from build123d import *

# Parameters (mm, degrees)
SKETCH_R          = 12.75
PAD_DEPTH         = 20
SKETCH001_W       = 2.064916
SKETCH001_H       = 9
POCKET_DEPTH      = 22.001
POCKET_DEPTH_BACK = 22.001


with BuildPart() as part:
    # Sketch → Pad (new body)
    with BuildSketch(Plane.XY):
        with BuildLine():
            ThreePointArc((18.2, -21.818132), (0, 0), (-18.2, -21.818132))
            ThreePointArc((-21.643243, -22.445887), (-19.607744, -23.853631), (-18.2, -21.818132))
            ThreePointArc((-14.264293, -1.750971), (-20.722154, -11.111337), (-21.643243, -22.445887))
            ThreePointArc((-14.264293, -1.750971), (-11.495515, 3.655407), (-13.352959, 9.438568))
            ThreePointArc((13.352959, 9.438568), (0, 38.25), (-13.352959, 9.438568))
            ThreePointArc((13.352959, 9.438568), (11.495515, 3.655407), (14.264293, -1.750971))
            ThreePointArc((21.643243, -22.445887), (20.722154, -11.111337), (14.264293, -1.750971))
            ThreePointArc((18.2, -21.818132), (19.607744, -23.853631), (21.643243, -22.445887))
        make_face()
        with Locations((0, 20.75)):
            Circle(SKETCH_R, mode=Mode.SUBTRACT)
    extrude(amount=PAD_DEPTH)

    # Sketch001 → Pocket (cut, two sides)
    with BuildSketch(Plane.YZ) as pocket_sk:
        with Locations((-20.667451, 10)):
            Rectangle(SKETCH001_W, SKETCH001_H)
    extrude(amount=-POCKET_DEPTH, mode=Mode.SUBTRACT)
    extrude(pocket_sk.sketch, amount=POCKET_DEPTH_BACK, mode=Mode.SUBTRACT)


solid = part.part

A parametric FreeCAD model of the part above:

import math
import FreeCAD as App
import Part
import Sketcher

V = App.Vector

doc = App.newDocument("Part")
body = doc.addObject("PartDesign::Body", "Body")

# Sketch on XY plane
sketch1 = body.newObject("Sketcher::SketchObject", "Sketch")
sketch1.AttachmentSupport = (doc.getObject("XY_Plane"), [""])
sketch1.MapMode = "FlatFace"
sketch1.addGeometry([
    Part.ArcOfCircle(Part.Circle(V(0, -18.5, 0), V(0, 0, 1), 18.5), math.radians(-10.332396), math.radians(190.332396)),  # 0
    Part.ArcOfCircle(Part.Circle(V(19.921622, -22.132009, 0), V(0, 0, 1), 1.75), math.radians(169.667599), math.radians(349.667599)),  # 1
    Part.ArcOfCircle(Part.Circle(V(-0.000001, -18.499999, 0), V(0, 0, 1), 22.000001), math.radians(-10.332398), math.radians(49.580656)),  # 2
    Part.ArcOfCircle(Part.Circle(V(19.418163, 4.300668, 0), V(0, 0, 1), 7.948881), math.radians(139.731705), math.radians(229.580671)),  # 3
    Part.ArcOfCircle(Part.Circle(V(0, 20.75, 0), V(0, 0, 1), 17.5), math.radians(-40.268286), math.radians(220.268286)),  # 4
    Part.ArcOfCircle(Part.Circle(V(-19.418163, 4.300668, 0), V(0, 0, 1), 7.948881), math.radians(-49.580671), math.radians(40.268295)),  # 5
    Part.ArcOfCircle(Part.Circle(V(0.000001, -18.499999, 0), V(0, 0, 1), 22.000001), math.radians(130.419344), math.radians(190.332398)),  # 6
    Part.ArcOfCircle(Part.Circle(V(-19.921622, -22.132009, 0), V(0, 0, 1), 1.75), math.radians(-169.667599), math.radians(10.332401)),  # 7
    Part.Circle(V(0, 20.75, 0), V(0, 0, 1), 12.75),  # 8
], False)
sketch1.addConstraint([
    Sketcher.Constraint("Tangent", 0, 1, 1, 1),
    Sketcher.Constraint("Tangent", 1, 2, 2, 1),
    Sketcher.Constraint("Tangent", 2, 2, 3, 2),
    Sketcher.Constraint("Tangent", 3, 1, 4, 1),
    Sketcher.Constraint("Tangent", 4, 2, 5, 2),
    Sketcher.Constraint("Tangent", 5, 1, 6, 1),
    Sketcher.Constraint("Tangent", 6, 2, 7, 1),
    Sketcher.Constraint("Tangent", 7, 2, 0, 2),
    Sketcher.Constraint("Coincident", 2, 3, 0, 3),
    Sketcher.Constraint("Coincident", 6, 3, 0, 3),
    Sketcher.Constraint("Coincident", 8, 3, 4, 3),
    Sketcher.Constraint("Equal", 3, 5),
    Sketcher.Constraint("Equal", 2, 6),
    Sketcher.Constraint("Symmetric", 3, 3, 5, 3, -2),
    Sketcher.Constraint("Horizontal", 1, 3, 7, 3),
    Sketcher.Constraint("Radius", 2, 22.000001),
    Sketcher.Constraint("Diameter", 8, 25.5),
    Sketcher.Constraint("Radius", 0, 18.5),
    Sketcher.Constraint("Radius", 4, 17.5),
    Sketcher.Constraint("DistanceY", 0, 3, -1, 1, 18.5),
    Sketcher.Constraint("DistanceX", -1, 1, 0, 1, 18.2),
    Sketcher.Constraint("DistanceY", -1, 1, 4, 3, 20.75),
    Sketcher.Constraint("Radius", 3, 7.948881),
])
pad1 = body.newObject("PartDesign::Pad", "Pad")
pad1.Profile = sketch1
pad1.Length = 20

# Sketch on YZ plane
sketch2 = body.newObject("Sketcher::SketchObject", "Sketch001")
sketch2.AttachmentSupport = (doc.getObject("YZ_Plane"), [""])
sketch2.MapMode = "FlatFace"
sketch2.addGeometry([
    Part.LineSegment(V(-21.699909, 14.5, 0), V(-21.699909, 5.5, 0)),
    Part.LineSegment(V(-21.699909, 5.5, 0), V(-19.634993, 5.5, 0)),
    Part.LineSegment(V(-19.634993, 5.5, 0), V(-19.634993, 14.5, 0)),
    Part.LineSegment(V(-19.634993, 14.5, 0), V(-21.699909, 14.5, 0)),
], False)
sketch2.addConstraint([
    Sketcher.Constraint("Coincident", 0, 2, 1, 1),
    Sketcher.Constraint("Coincident", 1, 2, 2, 1),
    Sketcher.Constraint("Coincident", 2, 2, 3, 1),
    Sketcher.Constraint("Coincident", 3, 2, 0, 1),
    Sketcher.Constraint("Vertical", 0),
    Sketcher.Constraint("Horizontal", 1),
    Sketcher.Constraint("Vertical", 2),
    Sketcher.Constraint("Horizontal", 3),
    Sketcher.Constraint("DistanceY", 0, 2, 0, 1, 9.0),
    Sketcher.Constraint("DistanceY", -1, 1, 0, 2, 5.5),
    Sketcher.Constraint("DistanceX", 1, 1, 1, 2, 2.064916),
    Sketcher.Constraint("DistanceX", 0, 2, -1, 1, 21.699909),
])
pocket1 = body.newObject("PartDesign::Pocket", "Pocket")
pocket1.Profile = sketch2
pocket1.Type = "ThroughAll"
pocket1.Midplane = True

doc.recompute()
